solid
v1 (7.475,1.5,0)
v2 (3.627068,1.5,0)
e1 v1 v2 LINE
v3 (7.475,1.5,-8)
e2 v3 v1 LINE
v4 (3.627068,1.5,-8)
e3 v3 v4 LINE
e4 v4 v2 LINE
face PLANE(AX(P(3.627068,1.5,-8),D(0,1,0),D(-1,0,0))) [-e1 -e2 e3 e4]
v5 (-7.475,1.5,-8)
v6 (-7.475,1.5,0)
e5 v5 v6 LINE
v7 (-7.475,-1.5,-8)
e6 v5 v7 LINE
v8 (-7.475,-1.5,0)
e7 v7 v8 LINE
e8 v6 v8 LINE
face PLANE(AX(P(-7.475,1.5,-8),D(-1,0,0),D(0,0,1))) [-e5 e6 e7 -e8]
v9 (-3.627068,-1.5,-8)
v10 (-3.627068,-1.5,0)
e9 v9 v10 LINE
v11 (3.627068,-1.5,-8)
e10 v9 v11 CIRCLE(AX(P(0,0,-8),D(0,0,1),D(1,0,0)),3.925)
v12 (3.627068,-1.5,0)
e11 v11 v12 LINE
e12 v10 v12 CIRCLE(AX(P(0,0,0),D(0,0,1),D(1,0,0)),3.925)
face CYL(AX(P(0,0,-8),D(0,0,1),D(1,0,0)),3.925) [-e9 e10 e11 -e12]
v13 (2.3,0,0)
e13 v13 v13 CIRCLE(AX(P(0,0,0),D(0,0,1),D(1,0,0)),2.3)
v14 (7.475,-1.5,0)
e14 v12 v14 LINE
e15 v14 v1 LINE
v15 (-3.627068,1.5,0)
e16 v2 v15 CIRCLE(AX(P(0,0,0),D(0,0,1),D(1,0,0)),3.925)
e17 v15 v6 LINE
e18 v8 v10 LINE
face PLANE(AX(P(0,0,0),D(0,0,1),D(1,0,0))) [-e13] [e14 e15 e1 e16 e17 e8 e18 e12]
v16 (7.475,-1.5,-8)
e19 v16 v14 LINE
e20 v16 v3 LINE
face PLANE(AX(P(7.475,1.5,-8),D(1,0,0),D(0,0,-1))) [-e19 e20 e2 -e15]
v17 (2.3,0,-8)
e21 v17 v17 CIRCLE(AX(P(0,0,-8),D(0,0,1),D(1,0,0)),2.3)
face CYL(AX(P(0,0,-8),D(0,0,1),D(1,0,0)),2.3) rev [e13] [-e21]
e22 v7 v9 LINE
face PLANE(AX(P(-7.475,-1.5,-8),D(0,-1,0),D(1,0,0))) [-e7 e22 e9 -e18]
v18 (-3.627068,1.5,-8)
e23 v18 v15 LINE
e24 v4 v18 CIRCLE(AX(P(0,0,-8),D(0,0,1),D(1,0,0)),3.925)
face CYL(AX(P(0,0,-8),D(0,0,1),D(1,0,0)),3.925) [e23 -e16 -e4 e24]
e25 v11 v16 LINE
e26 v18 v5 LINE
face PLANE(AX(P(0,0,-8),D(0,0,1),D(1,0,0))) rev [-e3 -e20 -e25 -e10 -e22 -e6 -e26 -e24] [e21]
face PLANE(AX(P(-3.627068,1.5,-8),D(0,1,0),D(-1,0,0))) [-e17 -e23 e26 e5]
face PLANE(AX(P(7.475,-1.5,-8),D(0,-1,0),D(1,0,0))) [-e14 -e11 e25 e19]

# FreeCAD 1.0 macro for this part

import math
import FreeCAD as App
import Part
import Sketcher
from FreeCAD import Vector

doc = App.newDocument("Part")
body = doc.addObject("PartDesign::Body", "Body")

sketch1 = body.newObject("Sketcher::SketchObject", "Sketch")
sketch1.AttachmentSupport = (doc.getObject("XY_Plane"), [""])
sketch1.MapMode = "FlatFace"
sketch1.addGeometry([
    Part.LineSegment(Vector(7.5, 1.5, 0), Vector(3.6, 1.5, 0)),
    Part.ArcOfCircle(Part.Circle(Vector(0, 0, 0), Vector(0, 0, 1), 3.9), math.radians(22), math.radians(158)),
    Part.LineSegment(Vector(-3.6, 1.5, 0), Vector(-7.5, 1.5, 0)),
    Part.LineSegment(Vector(-7.5, 1.5, 0), Vector(-7.5, -1.5, 0)),
    Part.LineSegment(Vector(-7.5, -1.5, 0), Vector(-3.6, -1.5, 0)),
    Part.ArcOfCircle(Part.Circle(Vector(0, 0, 0), Vector(0, 0, 1), 3.9), math.radians(-158), math.radians(-22)),
    Part.LineSegment(Vector(3.6, -1.5, 0), Vector(7.5, -1.5, 0)),
    Part.LineSegment(Vector(7.5, -1.5, 0), Vector(7.5, 1.5, 0)),
    Part.Circle(Vector(0, 0, 0), Vector(0, 0, 1), 2.3),
], False)
sketch1.addConstraint([
    Sketcher.Constraint("Coincident", 0, 2, 1, 1),
    Sketcher.Constraint("Coincident", 1, 2, 2, 1),
    Sketcher.Constraint("Coincident", 2, 2, 3, 1),
    Sketcher.Constraint("Coincident", 3, 2, 4, 1),
    Sketcher.Constraint("Coincident", 4, 2, 5, 1),
    Sketcher.Constraint("Coincident", 5, 2, 6, 1),
    Sketcher.Constraint("Coincident", 6, 2, 7, 1),
    Sketcher.Constraint("Coincident", 7, 2, 0, 1),
    Sketcher.Constraint("Horizontal", 0),
    Sketcher.Constraint("Horizontal", 2),
    Sketcher.Constraint("Vertical", 3),
    Sketcher.Constraint("Horizontal", 4),
    Sketcher.Constraint("Horizontal", 6),
    Sketcher.Constraint("Vertical", 7),
    Sketcher.Constraint("Coincident", 1, 3, -1, 1),
    Sketcher.Constraint("Coincident", 5, 3, -1, 1),
    Sketcher.Constraint("Coincident", 8, 3, -1, 1),
    Sketcher.Constraint("Equal", 1, 5),
    Sketcher.Constraint("Symmetric", 2, 2, 6, 2, -1, 1),
    Sketcher.Constraint("Horizontal", 0, 2, 1, 2),
    Sketcher.Constraint("Horizontal", 4, 2, 5, 2),
    Sketcher.Constraint("Diameter", 8, 4.6),
    Sketcher.Constraint("DistanceY", 3, 2, 3, 1, 3.0),
    Sketcher.Constraint("Radius", 1, 3.925),
    Sketcher.Constraint("DistanceX", 2, 2, -1, 1, 7.475),
])
pad1 = body.newObject("PartDesign::Pad", "Pad")
pad1.Profile = sketch1
pad1.Length = 8
pad1.Reversed = True

doc.recompute()
